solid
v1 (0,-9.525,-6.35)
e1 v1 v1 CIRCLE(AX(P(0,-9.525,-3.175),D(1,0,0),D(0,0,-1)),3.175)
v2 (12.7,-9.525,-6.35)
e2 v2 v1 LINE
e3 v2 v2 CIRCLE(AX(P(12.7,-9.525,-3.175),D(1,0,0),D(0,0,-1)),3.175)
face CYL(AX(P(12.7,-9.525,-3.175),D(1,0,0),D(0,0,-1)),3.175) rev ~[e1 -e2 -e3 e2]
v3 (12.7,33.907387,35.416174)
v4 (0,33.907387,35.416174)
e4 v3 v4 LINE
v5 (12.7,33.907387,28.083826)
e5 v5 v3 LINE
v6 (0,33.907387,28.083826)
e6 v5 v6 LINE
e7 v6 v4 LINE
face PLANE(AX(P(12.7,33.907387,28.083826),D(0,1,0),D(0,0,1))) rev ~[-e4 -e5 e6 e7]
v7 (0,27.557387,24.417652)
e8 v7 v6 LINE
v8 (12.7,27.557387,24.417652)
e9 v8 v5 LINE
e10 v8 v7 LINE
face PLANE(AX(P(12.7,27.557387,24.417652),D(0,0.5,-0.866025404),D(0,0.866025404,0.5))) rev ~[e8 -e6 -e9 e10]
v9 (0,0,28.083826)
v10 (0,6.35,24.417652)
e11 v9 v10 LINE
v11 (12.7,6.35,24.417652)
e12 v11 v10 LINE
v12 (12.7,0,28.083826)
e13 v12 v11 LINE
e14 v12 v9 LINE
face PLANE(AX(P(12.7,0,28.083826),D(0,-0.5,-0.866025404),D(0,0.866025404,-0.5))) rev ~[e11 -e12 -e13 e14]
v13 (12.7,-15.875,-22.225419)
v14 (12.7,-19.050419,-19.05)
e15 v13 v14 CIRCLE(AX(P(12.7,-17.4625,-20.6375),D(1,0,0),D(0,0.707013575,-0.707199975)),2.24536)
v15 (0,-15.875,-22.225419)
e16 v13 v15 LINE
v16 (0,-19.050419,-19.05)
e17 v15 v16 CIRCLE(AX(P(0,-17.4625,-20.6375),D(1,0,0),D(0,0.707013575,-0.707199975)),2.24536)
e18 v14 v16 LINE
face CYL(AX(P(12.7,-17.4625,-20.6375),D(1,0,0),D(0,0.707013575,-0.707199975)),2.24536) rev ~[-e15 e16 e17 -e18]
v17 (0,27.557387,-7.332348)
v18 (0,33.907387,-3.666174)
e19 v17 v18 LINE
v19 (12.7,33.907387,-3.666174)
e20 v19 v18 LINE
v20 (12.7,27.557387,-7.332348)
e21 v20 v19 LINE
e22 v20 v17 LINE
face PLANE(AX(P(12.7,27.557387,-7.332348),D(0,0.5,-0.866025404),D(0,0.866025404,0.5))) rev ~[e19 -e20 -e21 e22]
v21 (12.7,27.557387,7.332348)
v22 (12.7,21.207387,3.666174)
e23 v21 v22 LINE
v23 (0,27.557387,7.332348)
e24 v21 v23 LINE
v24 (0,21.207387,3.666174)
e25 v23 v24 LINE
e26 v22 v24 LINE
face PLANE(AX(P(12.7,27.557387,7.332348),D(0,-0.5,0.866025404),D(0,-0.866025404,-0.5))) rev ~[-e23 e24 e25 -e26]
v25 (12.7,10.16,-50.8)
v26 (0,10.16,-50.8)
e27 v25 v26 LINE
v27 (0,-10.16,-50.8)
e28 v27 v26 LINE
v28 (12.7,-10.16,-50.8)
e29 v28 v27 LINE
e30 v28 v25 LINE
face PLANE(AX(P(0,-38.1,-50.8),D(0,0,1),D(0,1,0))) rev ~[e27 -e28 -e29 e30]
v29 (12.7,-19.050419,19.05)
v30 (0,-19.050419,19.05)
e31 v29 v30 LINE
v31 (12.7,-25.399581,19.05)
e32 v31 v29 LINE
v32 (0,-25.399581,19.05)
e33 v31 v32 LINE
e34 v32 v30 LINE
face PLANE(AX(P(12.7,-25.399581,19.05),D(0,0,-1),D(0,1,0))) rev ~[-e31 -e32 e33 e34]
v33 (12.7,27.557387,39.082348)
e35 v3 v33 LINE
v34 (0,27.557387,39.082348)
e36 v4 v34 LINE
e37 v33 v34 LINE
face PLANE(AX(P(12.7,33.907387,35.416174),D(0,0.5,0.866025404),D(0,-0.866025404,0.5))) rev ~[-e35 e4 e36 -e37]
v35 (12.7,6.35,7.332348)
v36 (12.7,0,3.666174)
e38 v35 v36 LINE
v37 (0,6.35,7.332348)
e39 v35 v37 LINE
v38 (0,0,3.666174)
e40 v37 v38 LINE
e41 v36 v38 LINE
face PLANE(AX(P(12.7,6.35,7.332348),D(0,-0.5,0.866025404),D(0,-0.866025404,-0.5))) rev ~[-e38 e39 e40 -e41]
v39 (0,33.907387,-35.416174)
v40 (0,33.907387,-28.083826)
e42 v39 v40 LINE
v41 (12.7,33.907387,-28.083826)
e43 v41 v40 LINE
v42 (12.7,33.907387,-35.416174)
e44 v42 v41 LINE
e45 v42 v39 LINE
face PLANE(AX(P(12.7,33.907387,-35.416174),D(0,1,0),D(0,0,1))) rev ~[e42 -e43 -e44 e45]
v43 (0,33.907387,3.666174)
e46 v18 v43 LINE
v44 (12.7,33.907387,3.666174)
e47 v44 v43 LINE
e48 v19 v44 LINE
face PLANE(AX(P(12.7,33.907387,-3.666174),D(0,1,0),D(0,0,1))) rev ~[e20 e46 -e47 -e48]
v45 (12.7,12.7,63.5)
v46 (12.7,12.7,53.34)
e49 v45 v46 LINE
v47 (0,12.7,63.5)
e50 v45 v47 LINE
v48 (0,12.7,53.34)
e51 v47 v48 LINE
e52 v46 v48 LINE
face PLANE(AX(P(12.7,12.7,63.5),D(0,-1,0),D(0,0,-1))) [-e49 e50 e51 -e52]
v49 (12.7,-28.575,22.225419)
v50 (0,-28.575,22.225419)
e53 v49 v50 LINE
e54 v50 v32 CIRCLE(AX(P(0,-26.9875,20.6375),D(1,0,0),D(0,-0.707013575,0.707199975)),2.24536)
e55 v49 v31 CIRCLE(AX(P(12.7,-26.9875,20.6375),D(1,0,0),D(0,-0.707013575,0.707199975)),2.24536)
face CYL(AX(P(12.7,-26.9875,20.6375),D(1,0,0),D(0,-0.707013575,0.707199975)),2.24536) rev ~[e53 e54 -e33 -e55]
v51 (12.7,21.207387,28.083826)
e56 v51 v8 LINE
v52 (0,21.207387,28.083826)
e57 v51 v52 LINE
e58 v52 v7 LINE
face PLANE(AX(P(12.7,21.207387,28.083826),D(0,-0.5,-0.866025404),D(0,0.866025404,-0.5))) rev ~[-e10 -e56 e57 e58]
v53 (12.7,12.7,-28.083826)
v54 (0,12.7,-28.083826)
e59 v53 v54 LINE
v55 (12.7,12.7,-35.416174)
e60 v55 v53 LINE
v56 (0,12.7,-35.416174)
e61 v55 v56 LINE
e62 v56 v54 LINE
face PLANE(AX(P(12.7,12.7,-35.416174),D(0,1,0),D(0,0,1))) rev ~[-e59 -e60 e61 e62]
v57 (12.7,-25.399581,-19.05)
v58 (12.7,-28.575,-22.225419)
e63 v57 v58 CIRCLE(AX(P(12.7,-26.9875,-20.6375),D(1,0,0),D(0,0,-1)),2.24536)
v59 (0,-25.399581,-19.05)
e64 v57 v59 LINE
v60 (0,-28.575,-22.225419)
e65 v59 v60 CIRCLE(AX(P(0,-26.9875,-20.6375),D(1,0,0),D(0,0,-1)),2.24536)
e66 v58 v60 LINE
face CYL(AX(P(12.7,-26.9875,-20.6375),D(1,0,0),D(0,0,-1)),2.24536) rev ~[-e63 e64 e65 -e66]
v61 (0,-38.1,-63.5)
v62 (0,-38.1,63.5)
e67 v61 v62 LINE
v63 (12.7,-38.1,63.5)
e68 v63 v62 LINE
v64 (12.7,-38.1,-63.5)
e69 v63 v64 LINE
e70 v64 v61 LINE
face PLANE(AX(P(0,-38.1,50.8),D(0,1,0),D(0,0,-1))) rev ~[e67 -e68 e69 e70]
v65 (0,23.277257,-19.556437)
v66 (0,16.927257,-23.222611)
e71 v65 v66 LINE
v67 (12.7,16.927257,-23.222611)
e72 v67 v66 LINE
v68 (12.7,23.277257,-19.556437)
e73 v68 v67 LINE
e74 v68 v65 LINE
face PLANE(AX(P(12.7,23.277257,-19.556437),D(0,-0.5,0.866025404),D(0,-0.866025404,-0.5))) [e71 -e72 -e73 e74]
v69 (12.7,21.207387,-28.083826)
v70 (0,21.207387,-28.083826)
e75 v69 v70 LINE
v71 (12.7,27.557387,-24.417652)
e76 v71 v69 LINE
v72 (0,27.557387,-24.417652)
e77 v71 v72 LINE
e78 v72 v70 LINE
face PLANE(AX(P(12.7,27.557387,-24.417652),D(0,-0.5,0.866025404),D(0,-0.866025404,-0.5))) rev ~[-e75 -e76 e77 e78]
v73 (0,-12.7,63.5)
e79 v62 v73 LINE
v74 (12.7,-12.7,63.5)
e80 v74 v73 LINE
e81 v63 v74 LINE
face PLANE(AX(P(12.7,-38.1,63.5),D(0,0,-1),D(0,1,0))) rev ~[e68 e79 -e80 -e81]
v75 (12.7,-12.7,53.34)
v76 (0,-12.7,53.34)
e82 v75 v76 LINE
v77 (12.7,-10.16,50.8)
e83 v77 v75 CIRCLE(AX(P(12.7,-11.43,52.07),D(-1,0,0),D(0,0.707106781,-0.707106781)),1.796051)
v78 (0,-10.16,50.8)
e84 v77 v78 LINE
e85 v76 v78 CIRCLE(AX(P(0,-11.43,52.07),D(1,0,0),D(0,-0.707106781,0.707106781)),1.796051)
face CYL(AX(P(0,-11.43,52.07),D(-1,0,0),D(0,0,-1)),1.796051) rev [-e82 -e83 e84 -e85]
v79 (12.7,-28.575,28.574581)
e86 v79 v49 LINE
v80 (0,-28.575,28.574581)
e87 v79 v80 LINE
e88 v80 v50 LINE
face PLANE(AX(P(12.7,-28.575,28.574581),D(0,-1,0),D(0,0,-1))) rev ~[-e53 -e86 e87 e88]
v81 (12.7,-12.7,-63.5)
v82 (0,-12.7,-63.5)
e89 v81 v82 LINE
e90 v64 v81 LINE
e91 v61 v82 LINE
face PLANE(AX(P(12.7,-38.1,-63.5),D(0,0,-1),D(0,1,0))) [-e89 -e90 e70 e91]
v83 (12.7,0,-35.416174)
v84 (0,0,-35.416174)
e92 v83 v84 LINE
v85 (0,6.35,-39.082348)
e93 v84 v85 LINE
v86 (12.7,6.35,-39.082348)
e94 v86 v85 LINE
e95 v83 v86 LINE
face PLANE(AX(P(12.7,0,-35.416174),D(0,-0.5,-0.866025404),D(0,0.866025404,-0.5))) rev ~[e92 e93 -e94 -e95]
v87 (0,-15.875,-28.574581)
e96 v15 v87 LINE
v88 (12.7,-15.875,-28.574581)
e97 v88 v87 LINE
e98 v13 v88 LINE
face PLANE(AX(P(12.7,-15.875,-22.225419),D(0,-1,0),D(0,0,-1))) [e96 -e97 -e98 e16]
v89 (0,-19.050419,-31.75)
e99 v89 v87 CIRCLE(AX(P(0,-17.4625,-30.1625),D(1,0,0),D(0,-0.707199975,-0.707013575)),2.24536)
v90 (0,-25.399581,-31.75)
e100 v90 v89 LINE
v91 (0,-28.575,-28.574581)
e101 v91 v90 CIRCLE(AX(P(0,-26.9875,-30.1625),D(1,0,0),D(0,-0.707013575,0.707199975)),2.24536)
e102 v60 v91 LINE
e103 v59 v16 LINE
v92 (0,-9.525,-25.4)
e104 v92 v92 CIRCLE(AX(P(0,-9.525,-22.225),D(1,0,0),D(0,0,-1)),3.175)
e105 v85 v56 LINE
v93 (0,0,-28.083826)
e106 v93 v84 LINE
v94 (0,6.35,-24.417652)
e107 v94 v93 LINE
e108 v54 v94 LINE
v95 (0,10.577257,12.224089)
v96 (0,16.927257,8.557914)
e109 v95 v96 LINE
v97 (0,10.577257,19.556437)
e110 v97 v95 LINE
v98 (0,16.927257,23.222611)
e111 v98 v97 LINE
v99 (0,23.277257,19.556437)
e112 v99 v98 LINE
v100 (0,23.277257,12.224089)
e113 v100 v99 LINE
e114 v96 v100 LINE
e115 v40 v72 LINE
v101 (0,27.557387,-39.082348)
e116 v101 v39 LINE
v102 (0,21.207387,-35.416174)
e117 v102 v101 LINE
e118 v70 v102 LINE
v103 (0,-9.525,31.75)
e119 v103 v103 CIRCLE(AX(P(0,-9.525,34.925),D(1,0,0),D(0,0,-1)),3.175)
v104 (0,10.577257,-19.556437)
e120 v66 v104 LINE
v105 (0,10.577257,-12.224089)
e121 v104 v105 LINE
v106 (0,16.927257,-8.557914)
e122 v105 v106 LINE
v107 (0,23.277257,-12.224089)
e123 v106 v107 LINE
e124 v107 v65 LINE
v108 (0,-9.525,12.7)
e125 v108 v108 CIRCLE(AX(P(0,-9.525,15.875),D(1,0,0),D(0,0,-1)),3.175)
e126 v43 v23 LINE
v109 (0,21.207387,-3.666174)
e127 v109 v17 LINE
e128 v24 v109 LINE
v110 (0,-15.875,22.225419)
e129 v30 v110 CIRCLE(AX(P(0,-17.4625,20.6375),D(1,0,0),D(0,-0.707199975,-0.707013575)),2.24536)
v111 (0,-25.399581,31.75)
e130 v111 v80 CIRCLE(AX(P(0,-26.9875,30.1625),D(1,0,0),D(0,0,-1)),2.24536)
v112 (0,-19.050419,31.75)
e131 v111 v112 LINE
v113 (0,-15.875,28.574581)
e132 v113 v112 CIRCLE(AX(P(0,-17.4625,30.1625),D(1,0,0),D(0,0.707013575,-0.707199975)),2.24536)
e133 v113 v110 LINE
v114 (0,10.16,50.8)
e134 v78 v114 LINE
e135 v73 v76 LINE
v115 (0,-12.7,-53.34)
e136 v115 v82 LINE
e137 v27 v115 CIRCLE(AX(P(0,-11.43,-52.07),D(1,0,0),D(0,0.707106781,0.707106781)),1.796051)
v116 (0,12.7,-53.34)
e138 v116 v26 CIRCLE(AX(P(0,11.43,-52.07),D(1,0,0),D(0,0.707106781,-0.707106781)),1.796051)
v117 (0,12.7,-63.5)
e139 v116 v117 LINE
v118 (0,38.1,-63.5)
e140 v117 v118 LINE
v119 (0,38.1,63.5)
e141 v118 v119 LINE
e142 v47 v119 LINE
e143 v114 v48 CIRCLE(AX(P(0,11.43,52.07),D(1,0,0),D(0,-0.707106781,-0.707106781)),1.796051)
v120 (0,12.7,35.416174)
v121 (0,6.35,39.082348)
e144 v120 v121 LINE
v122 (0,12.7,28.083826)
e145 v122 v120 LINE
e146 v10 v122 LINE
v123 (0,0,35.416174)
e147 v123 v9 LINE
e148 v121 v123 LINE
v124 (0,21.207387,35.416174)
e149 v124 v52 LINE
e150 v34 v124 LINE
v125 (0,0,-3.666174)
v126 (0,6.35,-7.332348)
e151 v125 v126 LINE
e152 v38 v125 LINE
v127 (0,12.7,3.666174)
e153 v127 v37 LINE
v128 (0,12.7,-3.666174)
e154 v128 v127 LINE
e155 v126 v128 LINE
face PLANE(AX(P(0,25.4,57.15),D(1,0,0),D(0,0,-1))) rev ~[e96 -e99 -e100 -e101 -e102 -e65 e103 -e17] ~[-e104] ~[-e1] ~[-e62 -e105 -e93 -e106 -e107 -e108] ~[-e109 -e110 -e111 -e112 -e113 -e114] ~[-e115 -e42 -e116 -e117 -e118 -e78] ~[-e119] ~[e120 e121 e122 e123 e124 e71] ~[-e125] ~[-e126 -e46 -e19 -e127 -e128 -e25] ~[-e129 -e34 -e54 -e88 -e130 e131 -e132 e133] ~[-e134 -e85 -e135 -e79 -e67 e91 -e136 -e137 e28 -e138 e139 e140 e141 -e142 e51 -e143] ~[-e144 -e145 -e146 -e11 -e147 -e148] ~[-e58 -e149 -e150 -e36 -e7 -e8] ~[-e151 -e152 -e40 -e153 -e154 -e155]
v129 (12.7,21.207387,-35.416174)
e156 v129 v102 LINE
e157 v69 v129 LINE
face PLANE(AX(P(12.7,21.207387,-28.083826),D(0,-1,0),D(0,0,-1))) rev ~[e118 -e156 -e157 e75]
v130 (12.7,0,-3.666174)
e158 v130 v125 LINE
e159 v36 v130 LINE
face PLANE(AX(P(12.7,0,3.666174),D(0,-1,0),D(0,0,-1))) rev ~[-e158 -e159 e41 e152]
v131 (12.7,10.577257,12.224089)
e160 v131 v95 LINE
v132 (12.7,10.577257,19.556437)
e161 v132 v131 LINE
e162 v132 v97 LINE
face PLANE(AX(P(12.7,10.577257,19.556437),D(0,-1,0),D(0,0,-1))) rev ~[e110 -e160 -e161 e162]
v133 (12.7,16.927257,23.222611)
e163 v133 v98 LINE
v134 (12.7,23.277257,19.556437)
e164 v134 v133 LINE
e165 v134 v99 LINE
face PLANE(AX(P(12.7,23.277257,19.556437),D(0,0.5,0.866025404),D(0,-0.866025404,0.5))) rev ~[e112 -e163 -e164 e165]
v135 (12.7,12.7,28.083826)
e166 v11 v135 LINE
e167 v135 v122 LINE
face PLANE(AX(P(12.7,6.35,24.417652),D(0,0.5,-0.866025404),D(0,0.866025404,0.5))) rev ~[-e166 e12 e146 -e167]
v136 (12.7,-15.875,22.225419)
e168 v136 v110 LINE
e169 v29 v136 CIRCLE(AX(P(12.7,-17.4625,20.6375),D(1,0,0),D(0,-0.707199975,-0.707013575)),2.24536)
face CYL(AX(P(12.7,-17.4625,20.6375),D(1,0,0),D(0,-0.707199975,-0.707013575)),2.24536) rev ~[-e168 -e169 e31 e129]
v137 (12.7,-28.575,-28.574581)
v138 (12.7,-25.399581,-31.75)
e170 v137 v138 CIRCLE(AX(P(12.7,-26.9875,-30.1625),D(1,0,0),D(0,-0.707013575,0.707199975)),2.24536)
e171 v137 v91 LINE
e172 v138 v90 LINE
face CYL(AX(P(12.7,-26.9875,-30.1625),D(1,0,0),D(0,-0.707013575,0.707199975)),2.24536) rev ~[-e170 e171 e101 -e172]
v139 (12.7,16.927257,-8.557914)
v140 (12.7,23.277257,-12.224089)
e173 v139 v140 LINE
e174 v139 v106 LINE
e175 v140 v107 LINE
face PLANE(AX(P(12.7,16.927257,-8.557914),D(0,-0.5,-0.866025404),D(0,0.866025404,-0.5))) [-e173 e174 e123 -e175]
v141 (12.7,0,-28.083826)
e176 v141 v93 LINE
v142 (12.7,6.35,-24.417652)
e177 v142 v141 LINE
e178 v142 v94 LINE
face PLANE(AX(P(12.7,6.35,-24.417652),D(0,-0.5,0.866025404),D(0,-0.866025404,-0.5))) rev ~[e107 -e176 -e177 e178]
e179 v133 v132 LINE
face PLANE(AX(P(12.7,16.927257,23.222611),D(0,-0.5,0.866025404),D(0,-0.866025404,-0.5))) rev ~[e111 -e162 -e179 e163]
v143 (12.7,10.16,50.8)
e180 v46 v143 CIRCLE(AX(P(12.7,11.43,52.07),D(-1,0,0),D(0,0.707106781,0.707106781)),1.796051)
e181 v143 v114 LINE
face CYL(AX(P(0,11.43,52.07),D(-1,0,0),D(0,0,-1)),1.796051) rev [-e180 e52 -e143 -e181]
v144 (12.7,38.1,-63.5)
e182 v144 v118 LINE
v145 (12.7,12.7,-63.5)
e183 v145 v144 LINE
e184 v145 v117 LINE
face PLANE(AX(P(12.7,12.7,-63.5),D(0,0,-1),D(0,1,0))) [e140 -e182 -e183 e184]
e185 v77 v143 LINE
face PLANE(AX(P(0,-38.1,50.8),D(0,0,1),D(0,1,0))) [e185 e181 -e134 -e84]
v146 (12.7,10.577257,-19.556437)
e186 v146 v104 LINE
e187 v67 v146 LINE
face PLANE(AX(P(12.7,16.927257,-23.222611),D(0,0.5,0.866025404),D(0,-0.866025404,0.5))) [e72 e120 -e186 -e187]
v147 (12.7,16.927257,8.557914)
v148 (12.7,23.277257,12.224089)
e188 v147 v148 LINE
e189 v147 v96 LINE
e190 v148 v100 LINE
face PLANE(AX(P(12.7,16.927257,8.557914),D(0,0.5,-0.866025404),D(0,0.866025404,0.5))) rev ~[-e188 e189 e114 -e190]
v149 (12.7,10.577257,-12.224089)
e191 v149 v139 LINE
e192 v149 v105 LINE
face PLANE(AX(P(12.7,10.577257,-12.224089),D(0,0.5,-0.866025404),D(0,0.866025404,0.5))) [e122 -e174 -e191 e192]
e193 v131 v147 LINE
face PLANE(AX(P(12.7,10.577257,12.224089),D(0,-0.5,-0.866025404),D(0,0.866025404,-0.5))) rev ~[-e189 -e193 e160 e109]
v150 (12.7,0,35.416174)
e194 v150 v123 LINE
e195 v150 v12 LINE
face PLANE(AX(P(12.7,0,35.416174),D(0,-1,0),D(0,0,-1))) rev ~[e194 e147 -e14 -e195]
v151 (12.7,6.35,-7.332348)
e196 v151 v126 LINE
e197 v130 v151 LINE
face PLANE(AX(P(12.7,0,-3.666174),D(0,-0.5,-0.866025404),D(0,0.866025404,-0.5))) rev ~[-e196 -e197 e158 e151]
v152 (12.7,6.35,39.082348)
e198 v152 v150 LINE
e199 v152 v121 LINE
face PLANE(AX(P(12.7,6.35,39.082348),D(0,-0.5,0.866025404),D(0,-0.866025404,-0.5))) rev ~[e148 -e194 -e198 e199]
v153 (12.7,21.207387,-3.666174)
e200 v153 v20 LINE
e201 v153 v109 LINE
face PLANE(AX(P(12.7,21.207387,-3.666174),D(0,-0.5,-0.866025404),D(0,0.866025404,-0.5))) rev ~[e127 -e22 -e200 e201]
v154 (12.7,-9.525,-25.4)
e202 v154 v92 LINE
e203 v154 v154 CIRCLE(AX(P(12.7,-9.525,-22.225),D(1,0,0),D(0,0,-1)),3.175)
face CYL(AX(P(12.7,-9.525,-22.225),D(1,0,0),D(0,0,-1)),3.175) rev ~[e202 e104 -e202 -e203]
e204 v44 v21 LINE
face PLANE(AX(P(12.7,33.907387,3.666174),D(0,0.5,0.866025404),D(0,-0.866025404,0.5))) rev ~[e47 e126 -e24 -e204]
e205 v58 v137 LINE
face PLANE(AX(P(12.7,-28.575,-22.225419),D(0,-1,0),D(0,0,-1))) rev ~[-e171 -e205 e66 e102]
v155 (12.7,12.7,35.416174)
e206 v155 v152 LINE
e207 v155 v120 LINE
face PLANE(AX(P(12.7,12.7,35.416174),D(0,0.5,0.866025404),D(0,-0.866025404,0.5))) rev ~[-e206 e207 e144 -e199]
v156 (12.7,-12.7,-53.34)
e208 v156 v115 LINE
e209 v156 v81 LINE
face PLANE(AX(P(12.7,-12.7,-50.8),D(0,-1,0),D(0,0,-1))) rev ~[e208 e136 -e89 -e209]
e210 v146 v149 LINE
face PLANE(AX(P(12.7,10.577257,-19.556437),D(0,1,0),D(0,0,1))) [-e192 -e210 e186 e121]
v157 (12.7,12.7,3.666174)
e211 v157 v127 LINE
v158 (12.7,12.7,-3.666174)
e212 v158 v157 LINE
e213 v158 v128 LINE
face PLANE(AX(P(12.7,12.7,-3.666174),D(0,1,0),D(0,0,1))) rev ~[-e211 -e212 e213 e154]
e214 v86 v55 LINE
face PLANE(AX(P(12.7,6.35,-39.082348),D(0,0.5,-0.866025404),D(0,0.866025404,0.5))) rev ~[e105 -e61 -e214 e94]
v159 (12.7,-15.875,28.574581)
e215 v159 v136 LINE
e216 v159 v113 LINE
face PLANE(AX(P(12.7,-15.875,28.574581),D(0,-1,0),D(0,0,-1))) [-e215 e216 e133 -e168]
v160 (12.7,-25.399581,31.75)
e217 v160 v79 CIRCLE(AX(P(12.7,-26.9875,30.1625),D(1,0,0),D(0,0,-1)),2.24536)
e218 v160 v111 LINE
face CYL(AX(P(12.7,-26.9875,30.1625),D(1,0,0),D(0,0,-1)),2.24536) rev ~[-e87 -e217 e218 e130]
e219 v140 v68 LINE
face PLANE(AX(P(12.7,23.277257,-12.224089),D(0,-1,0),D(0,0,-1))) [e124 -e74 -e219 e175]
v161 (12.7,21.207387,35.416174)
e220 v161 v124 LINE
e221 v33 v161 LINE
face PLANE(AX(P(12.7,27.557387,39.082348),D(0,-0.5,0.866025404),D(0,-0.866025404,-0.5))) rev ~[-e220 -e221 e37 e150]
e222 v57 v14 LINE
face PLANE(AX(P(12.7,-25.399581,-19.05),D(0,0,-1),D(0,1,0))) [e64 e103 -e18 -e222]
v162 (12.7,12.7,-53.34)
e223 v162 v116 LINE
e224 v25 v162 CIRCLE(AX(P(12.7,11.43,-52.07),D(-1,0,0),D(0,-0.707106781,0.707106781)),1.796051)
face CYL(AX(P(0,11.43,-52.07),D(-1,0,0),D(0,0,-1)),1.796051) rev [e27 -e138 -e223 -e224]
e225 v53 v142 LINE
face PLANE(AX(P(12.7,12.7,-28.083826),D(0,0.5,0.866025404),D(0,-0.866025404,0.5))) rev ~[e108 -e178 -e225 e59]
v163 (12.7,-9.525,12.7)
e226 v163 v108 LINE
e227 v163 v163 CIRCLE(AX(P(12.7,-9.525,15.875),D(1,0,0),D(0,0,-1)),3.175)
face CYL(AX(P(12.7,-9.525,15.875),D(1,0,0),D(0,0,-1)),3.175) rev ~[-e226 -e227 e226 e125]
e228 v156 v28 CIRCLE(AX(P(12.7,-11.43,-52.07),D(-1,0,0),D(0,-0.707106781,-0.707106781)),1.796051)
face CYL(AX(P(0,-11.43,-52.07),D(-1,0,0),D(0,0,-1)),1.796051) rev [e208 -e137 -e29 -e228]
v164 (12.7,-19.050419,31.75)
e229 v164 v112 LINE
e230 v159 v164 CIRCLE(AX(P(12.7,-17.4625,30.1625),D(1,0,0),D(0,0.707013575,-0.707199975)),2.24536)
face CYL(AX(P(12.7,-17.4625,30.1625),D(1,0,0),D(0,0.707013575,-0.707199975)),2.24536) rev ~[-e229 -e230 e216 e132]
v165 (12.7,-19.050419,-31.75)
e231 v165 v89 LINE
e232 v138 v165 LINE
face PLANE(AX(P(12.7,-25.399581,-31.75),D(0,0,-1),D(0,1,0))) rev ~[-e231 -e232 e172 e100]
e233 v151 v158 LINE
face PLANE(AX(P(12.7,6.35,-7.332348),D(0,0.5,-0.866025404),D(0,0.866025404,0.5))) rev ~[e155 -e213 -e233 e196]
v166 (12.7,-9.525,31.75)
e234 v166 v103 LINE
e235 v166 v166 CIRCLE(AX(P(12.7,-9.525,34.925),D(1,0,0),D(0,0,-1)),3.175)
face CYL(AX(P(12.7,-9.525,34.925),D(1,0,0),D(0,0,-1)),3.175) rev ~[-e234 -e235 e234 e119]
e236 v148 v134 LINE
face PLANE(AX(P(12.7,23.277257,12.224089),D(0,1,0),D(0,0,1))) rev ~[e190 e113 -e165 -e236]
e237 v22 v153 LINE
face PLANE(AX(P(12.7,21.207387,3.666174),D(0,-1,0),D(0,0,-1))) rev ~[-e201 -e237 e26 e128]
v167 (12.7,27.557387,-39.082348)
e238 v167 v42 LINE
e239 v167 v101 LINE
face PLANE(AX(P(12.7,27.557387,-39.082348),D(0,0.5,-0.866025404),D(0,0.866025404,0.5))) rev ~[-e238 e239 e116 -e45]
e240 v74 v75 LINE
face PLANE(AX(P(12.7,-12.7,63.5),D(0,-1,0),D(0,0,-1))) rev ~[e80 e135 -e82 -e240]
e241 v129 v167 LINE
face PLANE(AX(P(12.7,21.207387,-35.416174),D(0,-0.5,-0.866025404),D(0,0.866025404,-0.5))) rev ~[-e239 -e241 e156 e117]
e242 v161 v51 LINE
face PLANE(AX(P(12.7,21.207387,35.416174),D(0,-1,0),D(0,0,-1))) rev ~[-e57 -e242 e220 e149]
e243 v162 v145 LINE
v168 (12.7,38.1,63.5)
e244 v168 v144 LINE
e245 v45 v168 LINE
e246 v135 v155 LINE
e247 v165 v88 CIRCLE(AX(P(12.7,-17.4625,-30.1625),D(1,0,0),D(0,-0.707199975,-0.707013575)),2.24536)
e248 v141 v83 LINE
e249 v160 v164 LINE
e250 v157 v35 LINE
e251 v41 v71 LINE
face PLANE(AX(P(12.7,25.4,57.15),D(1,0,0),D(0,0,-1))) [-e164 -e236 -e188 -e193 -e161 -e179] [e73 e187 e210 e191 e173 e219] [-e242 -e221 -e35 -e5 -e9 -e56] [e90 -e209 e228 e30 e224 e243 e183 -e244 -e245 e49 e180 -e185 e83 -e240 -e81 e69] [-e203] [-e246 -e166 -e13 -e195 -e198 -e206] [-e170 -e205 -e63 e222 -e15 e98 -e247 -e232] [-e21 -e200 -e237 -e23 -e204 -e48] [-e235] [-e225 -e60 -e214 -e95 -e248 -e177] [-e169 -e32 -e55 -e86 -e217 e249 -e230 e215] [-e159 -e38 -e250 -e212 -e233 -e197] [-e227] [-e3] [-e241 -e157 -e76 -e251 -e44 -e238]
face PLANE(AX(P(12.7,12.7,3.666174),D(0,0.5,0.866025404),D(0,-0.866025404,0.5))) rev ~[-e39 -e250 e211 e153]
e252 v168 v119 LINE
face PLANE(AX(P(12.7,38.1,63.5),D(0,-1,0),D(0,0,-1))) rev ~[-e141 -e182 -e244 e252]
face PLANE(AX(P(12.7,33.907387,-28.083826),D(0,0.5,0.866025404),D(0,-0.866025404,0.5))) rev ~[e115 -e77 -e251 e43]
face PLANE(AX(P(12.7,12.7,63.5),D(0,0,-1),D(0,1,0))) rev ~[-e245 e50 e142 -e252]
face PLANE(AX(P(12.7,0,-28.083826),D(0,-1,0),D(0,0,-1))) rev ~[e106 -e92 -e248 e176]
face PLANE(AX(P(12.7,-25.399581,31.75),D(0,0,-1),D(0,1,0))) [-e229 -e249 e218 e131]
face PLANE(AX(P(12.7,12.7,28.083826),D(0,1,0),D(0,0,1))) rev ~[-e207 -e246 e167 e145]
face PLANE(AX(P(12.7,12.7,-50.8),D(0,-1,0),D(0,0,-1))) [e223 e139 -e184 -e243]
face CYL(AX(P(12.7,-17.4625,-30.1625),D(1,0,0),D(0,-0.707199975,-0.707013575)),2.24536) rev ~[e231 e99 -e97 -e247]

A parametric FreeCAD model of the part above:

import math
import FreeCAD as App
import Part
import Sketcher
Q = App.Units.Quantity

doc = App.newDocument("Part")
params = doc.addObject("Spreadsheet::Sheet", "Params")
for row, (alias, value) in enumerate([
    ("sketch1_width", "3 in"),
    ("sketch1_height", "4 in"),
    ("pad1_length", "0.5 in"),
    ("pocket1_length", "0.5 in"),
    ("pocket2_length", "0.5 in"),
    ("sketch4_width", "1 in"),
    ("sketch4_height", "0.5 in"),
    ("pad2_length", "0.5 in"),
    ("pocket3_length", "0.5 in"),
    ("sketch6_diameter", "0.25 in"),
    ("sketch7_diameter", "0.25 in"),
    ("sketch8_diameter", "0.25 in"),
    ("sketch9_diameter", "0.25 in"),
], start=1):
    params.set(f"A{row}", alias)
    params.set(f"B{row}", "=" + value)
    params.setAlias(f"B{row}", alias)

body = doc.addObject("PartDesign::Body", "Body")

# Sketch on YZ plane
sketch1 = body.newObject("Sketcher::SketchObject", "Sketch")
sketch1.AttachmentSupport = (doc.getObject("YZ_Plane"), [""])
sketch1.MapMode = "FlatFace"
sketch1.addGeometry([
    Part.LineSegment(App.Vector(38, 51, 0), App.Vector(-38, 51, 0)),
    Part.LineSegment(App.Vector(-38, 51, 0), App.Vector(-38, -51, 0)),
    Part.LineSegment(App.Vector(-38, -51, 0), App.Vector(38, -51, 0)),
    Part.LineSegment(App.Vector(38, -51, 0), App.Vector(38, 51, 0)),
], False)
sketch1.addConstraint([
    Sketcher.Constraint("Coincident", 0, 2, 1, 1),
    Sketcher.Constraint("Coincident", 1, 2, 2, 1),
    Sketcher.Constraint("Coincident", 2, 2, 3, 1),
    Sketcher.Constraint("Coincident", 3, 2, 0, 1),
    Sketcher.Constraint("Horizontal", 0),
    Sketcher.Constraint("Vertical", 1),
    Sketcher.Constraint("Horizontal", 2),
    Sketcher.Constraint("Vertical", 3),
    Sketcher.Constraint("Symmetric", 0, 2, 2, 2, -1, 1),
    Sketcher.Constraint("DistanceX", 0, 2, 0, 1, Q("3 in")),
    Sketcher.Constraint("DistanceY", 1, 2, 1, 1, Q("4 in")),
])
sketch1.setExpression("Constraints[9]", "Params.sketch1_width")
sketch1.setExpression("Constraints[10]", "Params.sketch1_height")
pad1 = body.newObject("PartDesign::Pad", "Pad")
pad1.Profile = sketch1
pad1.setExpression("Length", "Params.pad1_length")

# Sketch on YZ plane
sketch2 = body.newObject("Sketcher::SketchObject", "Sketch001")
sketch2.AttachmentSupport = (doc.getObject("YZ_Plane"), [""])
sketch2.MapMode = "FlatFace"
sketch2.AttachmentOffset = App.Placement(App.Vector(0, 0, 0.5 * 25.4), App.Rotation())
sketch2.addGeometry([
    Part.LineSegment(App.Vector(-15.9, 22.2, 0), App.Vector(-15.9, 28.6, 0)),  # 0
    Part.ArcOfCircle(Part.Circle(App.Vector(-17.5, 30.2, 0), App.Vector(0, 0, 1), 2.2), math.radians(-45), math.radians(135)),  # 1
    Part.LineSegment(App.Vector(-19.1, 31.8, 0), App.Vector(-25.4, 31.8, 0)),  # 2
    Part.ArcOfCircle(Part.Circle(App.Vector(-27, 30.2, 0), App.Vector(0, 0, 1), 2.2), math.radians(45), math.radians(225)),  # 3
    Part.LineSegment(App.Vector(-28.6, 28.6, 0), App.Vector(-28.6, 22.2, 0)),  # 4
    Part.ArcOfCircle(Part.Circle(App.Vector(-27, 20.6, 0), App.Vector(0, 0, 1), 2.2), math.radians(135), math.radians(315)),  # 5
    Part.LineSegment(App.Vector(-25.4, 19.1, 0), App.Vector(-19.1, 19.1, 0)),  # 6
    Part.ArcOfCircle(Part.Circle(App.Vector(-17.5, 20.6, 0), App.Vector(0, 0, 1), 2.2), math.radians(-135), math.radians(45)),  # 7
    Part.ArcOfCircle(Part.Circle(App.Vector(-27, -20.6, 0), App.Vector(0, 0, 1), 2.2), math.radians(45), math.radians(225)),  # 8
    Part.LineSegment(App.Vector(-28.6, -22.2, 0), App.Vector(-28.6, -28.6, 0)),  # 9
    Part.ArcOfCircle(Part.Circle(App.Vector(-27, -30.2, 0), App.Vector(0, 0, 1), 2.2), math.radians(135), math.radians(315)),  # 10
    Part.LineSegment(App.Vector(-25.4, -31.8, 0), App.Vector(-19.1, -31.8, 0)),  # 11
    Part.ArcOfCircle(Part.Circle(App.Vector(-17.5, -30.2, 0), App.Vector(0, 0, 1), 2.2), math.radians(-135), math.radians(45)),  # 12
    Part.LineSegment(App.Vector(-15.9, -28.6, 0), App.Vector(-15.9, -22.2, 0)),  # 13
    Part.ArcOfCircle(Part.Circle(App.Vector(-17.5, -20.6, 0), App.Vector(0, 0, 1), 2.2), math.radians(-45), math.radians(135)),  # 14
    Part.LineSegment(App.Vector(-19.1, -19.1, 0), App.Vector(-25.4, -19.1, 0)),  # 15
], False)
sketch2.addConstraint([
    Sketcher.Constraint("Coincident", 0, 2, 1, 1),
    Sketcher.Constraint("Coincident", 1, 2, 2, 1),
    Sketcher.Constraint("Coincident", 2, 2, 3, 1),
    Sketcher.Constraint("Coincident", 3, 2, 4, 1),
    Sketcher.Constraint("Coincident", 4, 2, 5, 1),
    Sketcher.Constraint("Coincident", 5, 2, 6, 1),
    Sketcher.Constraint("Coincident", 6, 2, 7, 1),
    Sketcher.Constraint("Coincident", 7, 2, 0, 1),
    Sketcher.Constraint("Coincident", 8, 2, 9, 1),
    Sketcher.Constraint("Coincident", 9, 2, 10, 1),
    Sketcher.Constraint("Coincident", 10, 2, 11, 1),
    Sketcher.Constraint("Coincident", 11, 2, 12, 1),
    Sketcher.Constraint("Coincident", 12, 2, 13, 1),
    Sketcher.Constraint("Coincident", 13, 2, 14, 1),
    Sketcher.Constraint("Coincident", 14, 2, 15, 1),
    Sketcher.Constraint("Coincident", 15, 2, 8, 1),
    Sketcher.Constraint("Vertical", 0),
    Sketcher.Constraint("Horizontal", 2),
    Sketcher.Constraint("Vertical", 4),
    Sketcher.Constraint("Horizontal", 6),
    Sketcher.Constraint("Vertical", 9),
    Sketcher.Constraint("Horizontal", 11),
    Sketcher.Constraint("Vertical", 13),
    Sketcher.Constraint("Horizontal", 15),
    Sketcher.Constraint("Equal", 1, 3),
    Sketcher.Constraint("Equal", 3, 5),
    Sketcher.Constraint("Equal", 5, 7),
    Sketcher.Constraint("Equal", 7, 8),
    Sketcher.Constraint("Equal", 8, 10),
    Sketcher.Constraint("Equal", 10, 12),
    Sketcher.Constraint("Equal", 12, 14),
    Sketcher.Constraint("Symmetric", 5, 3, 8, 3, -1),
    Sketcher.Constraint("Symmetric", 3, 3, 10, 3, -1),
    Sketcher.Constraint("Symmetric", 1, 3, 12, 3, -1),
    Sketcher.Constraint("Symmetric", 7, 3, 14, 3, -1),
    Sketcher.Constraint("Horizontal", 1, 3, 3, 3),
    Sketcher.Constraint("Horizontal", 5, 3, 7, 3),
    Sketcher.Constraint("Horizontal", 0, 2, 3, 2),
    Sketcher.Constraint("Horizontal", 4, 2, 7, 2),
    Sketcher.Constraint("Horizontal", 9, 2, 12, 2),
    Sketcher.Constraint("Vertical", 3, 3, 5, 3),
    Sketcher.Constraint("Vertical", 2, 2, 5, 2),
    Sketcher.Constraint("Vertical", 4, 2, 8, 2),
    Sketcher.Constraint("Vertical", 5, 2, 10, 2),
    Sketcher.Constraint("Vertical", 11, 2, 14, 2),
    Sketcher.Constraint("Equal", 15, 0),
    Sketcher.Constraint("DistanceY", 8, 3, 3, 3, Q("2 in")),
    Sketcher.Constraint("Radius", 1, Q("0.0884 in")),
    Sketcher.Constraint("DistanceY", -1, 1, 1, 2, Q("1.25 in")),
    Sketcher.Constraint("DistanceX", 1, 3, -1, 1, Q("0.6875 in")),
    Sketcher.Constraint("DistanceY", -1, 1, 1, 3, Q("1.1875 in")),
    Sketcher.Constraint("DistanceX", 3, 3, -1, 1, Q("1.0625 in")),
])
pocket1 = body.newObject("PartDesign::Pocket", "Pocket")
pocket1.Profile = sketch2
pocket1.setExpression("Length", "Params.pocket1_length")

# Sketch on YZ plane
sketch3 = body.newObject("Sketcher::SketchObject", "Sketch002")
sketch3.AttachmentSupport = (doc.getObject("YZ_Plane"), [""])
sketch3.MapMode = "FlatFace"
sketch3.AttachmentOffset = App.Placement(App.Vector(0, 0, 0.5 * 25.4), App.Rotation())
sketch3.addGeometry([
    Part.LineSegment(App.Vector(21, 35, 0), App.Vector(21, 28, 0)),  # 0
    Part.LineSegment(App.Vector(21, 28, 0), App.Vector(28, 24, 0)),  # 1
    Part.LineSegment(App.Vector(28, 24, 0), App.Vector(34, 28, 0)),  # 2
    Part.LineSegment(App.Vector(34, 28, 0), App.Vector(34, 35, 0)),  # 3
    Part.LineSegment(App.Vector(34, 35, 0), App.Vector(28, 39, 0)),  # 4
    Part.LineSegment(App.Vector(28, 39, 0), App.Vector(21, 35, 0)),  # 5
    Part.LineSegment(App.Vector(0, 4, 0), App.Vector(0, -4, 0)),  # 6
    Part.LineSegment(App.Vector(0, -4, 0), App.Vector(6, -7, 0)),  # 7
    Part.LineSegment(App.Vector(6, -7, 0), App.Vector(13, -4, 0)),  # 8
    Part.LineSegment(App.Vector(13, -4, 0), App.Vector(13, 4, 0)),  # 9
    Part.LineSegment(App.Vector(13, 4, 0), App.Vector(6, 7, 0)),  # 10
    Part.LineSegment(App.Vector(6, 7, 0), App.Vector(0, 4, 0)),  # 11
    Part.LineSegment(App.Vector(0, 35, 0), App.Vector(0, 28, 0)),  # 12
    Part.LineSegment(App.Vector(0, 28, 0), App.Vector(6, 24, 0)),  # 13
    Part.LineSegment(App.Vector(6, 24, 0), App.Vector(13, 28, 0)),  # 14
    Part.LineSegment(App.Vector(13, 28, 0), App.Vector(13, 35, 0)),  # 15
    Part.LineSegment(App.Vector(13, 35, 0), App.Vector(6, 39, 0)),  # 16
    Part.LineSegment(App.Vector(6, 39, 0), App.Vector(0, 35, 0)),  # 17
    Part.LineSegment(App.Vector(0, -28, 0), App.Vector(0, -35, 0)),  # 18
    Part.LineSegment(App.Vector(0, -35, 0), App.Vector(6, -39, 0)),  # 19
    Part.LineSegment(App.Vector(6, -39, 0), App.Vector(13, -35, 0)),  # 20
    Part.LineSegment(App.Vector(13, -35, 0), App.Vector(13, -28, 0)),  # 21
    Part.LineSegment(App.Vector(13, -28, 0), App.Vector(6, -24, 0)),  # 22
    Part.LineSegment(App.Vector(6, -24, 0), App.Vector(0, -28, 0)),  # 23
    Part.LineSegment(App.Vector(21, 4, 0), App.Vector(21, -4, 0)),  # 24
    Part.LineSegment(App.Vector(21, -4, 0), App.Vector(28, -7, 0)),  # 25
    Part.LineSegment(App.Vector(28, -7, 0), App.Vector(34, -4, 0)),  # 26
    Part.LineSegment(App.Vector(34, -4, 0), App.Vector(34, 4, 0)),  # 27
    Part.LineSegment(App.Vector(34, 4, 0), App.Vector(28, 7, 0)),  # 28
    Part.LineSegment(App.Vector(28, 7, 0), App.Vector(21, 4, 0)),  # 29
    Part.LineSegment(App.Vector(21, -28, 0), App.Vector(21, -35, 0)),  # 30
    Part.LineSegment(App.Vector(21, -35, 0), App.Vector(28, -39, 0)),  # 31
    Part.LineSegment(App.Vector(28, -39, 0), App.Vector(34, -35, 0)),  # 32
    Part.LineSegment(App.Vector(34, -35, 0), App.Vector(34, -28, 0)),  # 33
    Part.LineSegment(App.Vector(34, -28, 0), App.Vector(28, -24, 0)),  # 34
    Part.LineSegment(App.Vector(28, -24, 0), App.Vector(21, -28, 0)),  # 35
    Part.LineSegment(App.Vector(11, -12, 0), App.Vector(11, -20, 0)),  # 36
    Part.LineSegment(App.Vector(11, -20, 0), App.Vector(17, -23, 0)),  # 37
    Part.LineSegment(App.Vector(17, -23, 0), App.Vector(23, -20, 0)),  # 38
    Part.LineSegment(App.Vector(23, -20, 0), App.Vector(23, -12, 0)),  # 39
    Part.LineSegment(App.Vector(23, -12, 0), App.Vector(17, -9, 0)),  # 40
    Part.LineSegment(App.Vector(17, -9, 0), App.Vector(11, -12, 0)),  # 41
    Part.LineSegment(App.Vector(11, 12, 0), App.Vector(17, 9, 0)),  # 42
    Part.LineSegment(App.Vector(17, 9, 0), App.Vector(23, 12, 0)),  # 43
    Part.LineSegment(App.Vector(23, 12, 0), App.Vector(23, 20, 0)),  # 44
    Part.LineSegment(App.Vector(23, 20, 0), App.Vector(17, 23, 0)),  # 45
    Part.LineSegment(App.Vector(17, 23, 0), App.Vector(11, 20, 0)),  # 46
    Part.LineSegment(App.Vector(11, 20, 0), App.Vector(11, 12, 0)),  # 47
], False)
sketch3.addConstraint([
    Sketcher.Constraint("Coincident", 0, 2, 1, 1),
    Sketcher.Constraint("Coincident", 1, 2, 2, 1),
    Sketcher.Constraint("Coincident", 2, 2, 3, 1),
    Sketcher.Constraint("Coincident", 3, 2, 4, 1),
    Sketcher.Constraint("Coincident", 4, 2, 5, 1),
    Sketcher.Constraint("Coincident", 5, 2, 0, 1),
    Sketcher.Constraint("Coincident", 6, 2, 7, 1),
    Sketcher.Constraint("Coincident", 7, 2, 8, 1),
    Sketcher.Constraint("Coincident", 8, 2, 9, 1),
    Sketcher.Constraint("Coincident", 9, 2, 10, 1),
    Sketcher.Constraint("Coincident", 10, 2, 11, 1),
    Sketcher.Constraint("Coincident", 11, 2, 6, 1),
    Sketcher.Constraint("Coincident", 12, 2, 13, 1),
    Sketcher.Constraint("Coincident", 13, 2, 14, 1),
    Sketcher.Constraint("Coincident", 14, 2, 15, 1),
    Sketcher.Constraint("Coincident", 15, 2, 16, 1),
    Sketcher.Constraint("Coincident", 16, 2, 17, 1),
    Sketcher.Constraint("Coincident", 17, 2, 12, 1),
    Sketcher.Constraint("Coincident", 18, 2, 19, 1),
    Sketcher.Constraint("Coincident", 19, 2, 20, 1),
    Sketcher.Constraint("Coincident", 20, 2, 21, 1),
    Sketcher.Constraint("Coincident", 21, 2, 22, 1),
    Sketcher.Constraint("Coincident", 22, 2, 23, 1),
    Sketcher.Constraint("Coincident", 23, 2, 18, 1),
    Sketcher.Constraint("Coincident", 24, 2, 25, 1),
    Sketcher.Constraint("Coincident", 25, 2, 26, 1),
    Sketcher.Constraint("Coincident", 26, 2, 27, 1),
    Sketcher.Constraint("Coincident", 27, 2, 28, 1),
    Sketcher.Constraint("Coincident", 28, 2, 29, 1),
    Sketcher.Constraint("Coincident", 29, 2, 24, 1),
    Sketcher.Constraint("Coincident", 30, 2, 31, 1),
    Sketcher.Constraint("Coincident", 31, 2, 32, 1),
    Sketcher.Constraint("Coincident", 32, 2, 33, 1),
    Sketcher.Constraint("Coincident", 33, 2, 34, 1),
    Sketcher.Constraint("Coincident", 34, 2, 35, 1),
    Sketcher.Constraint("Coincident", 35, 2, 30, 1),
    Sketcher.Constraint("Coincident", 36, 2, 37, 1),
    Sketcher.Constraint("Coincident", 37, 2, 38, 1),
    Sketcher.Constraint("Coincident", 38, 2, 39, 1),
    Sketcher.Constraint("Coincident", 39, 2, 40, 1),
    Sketcher.Constraint("Coincident", 40, 2, 41, 1),
    Sketcher.Constraint("Coincident", 41, 2, 36, 1),
    Sketcher.Constraint("Coincident", 42, 2, 43, 1),
    Sketcher.Constraint("Coincident", 43, 2, 44, 1),
    Sketcher.Constraint("Coincident", 44, 2, 45, 1),
    Sketcher.Constraint("Coincident", 45, 2, 46, 1),
    Sketcher.Constraint("Coincident", 46, 2, 47, 1),
    Sketcher.Constraint("Coincident", 47, 2, 42, 1),
    Sketcher.Constraint("Vertical", 0),
    Sketcher.Constraint("Vertical", 3),
    Sketcher.Constraint("Vertical", 6),
    Sketcher.Constraint("Vertical", 9),
    Sketcher.Constraint("Vertical", 12),
    Sketcher.Constraint("Vertical", 15),
    Sketcher.Constraint("Vertical", 18),
    Sketcher.Constraint("Vertical", 21),
    Sketcher.Constraint("Vertical", 24),
    Sketcher.Constraint("Vertical", 27),
    Sketcher.Constraint("Vertical", 30),
    Sketcher.Constraint("Vertical", 33),
    Sketcher.Constraint("Vertical", 36),
    Sketcher.Constraint("Vertical", 39),
    Sketcher.Constraint("Vertical", 44),
    Sketcher.Constraint("Vertical", 47),
    Sketcher.Constraint("Symmetric", 6, 2, 11, 2, -1, 1),
    Sketcher.Constraint("Symmetric", 17, 2, 18, 2, -1, 1),
    Sketcher.Constraint("Symmetric", 7, 2, 10, 2, -1),
    Sketcher.Constraint("Symmetric", 16, 2, 19, 2, -1),
    Sketcher.Constraint("Symmetric", 15, 2, 20, 2, -1),
    Sketcher.Constraint("Symmetric", 13, 2, 22, 2, -1),
    Sketcher.Constraint("Symmetric", 12, 2, 23, 2, -1),
    Sketcher.Constraint("Symmetric", 25, 2, 28, 2, -1),
    Sketcher.Constraint("Symmetric", 5, 2, 30, 2, -1),
    Sketcher.Constraint("Symmetric", 4, 2, 31, 2, -1),
    Sketcher.Constraint("Symmetric", 3, 2, 32, 2, -1),
    Sketcher.Constraint("Symmetric", 1, 2, 34, 2, -1),
    Sketcher.Constraint("Symmetric", 40, 2, 42, 2, -1),
    Sketcher.Constraint("Symmetric", 39, 2, 43, 2, -1),
    Sketcher.Constraint("Symmetric", 37, 2, 45, 2, -1),
    Sketcher.Constraint("Symmetric", 36, 2, 46, 2, -1),
    Sketcher.Constraint("Parallel", 1, 4),
    Sketcher.Constraint("Parallel", 2, 5),
    Sketcher.Constraint("Parallel", 4, 7),
    Sketcher.Constraint("Parallel", 5, 8),
    Sketcher.Constraint("Parallel", 7, 10),
    Sketcher.Constraint("Parallel", 8, 11),
    Sketcher.Constraint("Parallel", 10, 13),
    Sketcher.Constraint("Parallel", 11, 14),
    Sketcher.Constraint("Parallel", 13, 16),
    Sketcher.Constraint("Parallel", 14, 17),
    Sketcher.Constraint("Parallel", 19, 22),
    Sketcher.Constraint("Parallel", 22, 25),
    Sketcher.Constraint("Parallel", 23, 26),
    Sketcher.Constraint("Parallel", 25, 28),
    Sketcher.Constraint("Parallel", 26, 29),
    Sketcher.Constraint("Parallel", 31, 34),
    Sketcher.Constraint("Parallel", 32, 35),
    Sketcher.Constraint("Parallel", 34, 37),
    Sketcher.Constraint("Parallel", 35, 38),
    Sketcher.Constraint("Parallel", 37, 40),
    Sketcher.Constraint("Parallel", 38, 41),
    Sketcher.Constraint("Parallel", 40, 42),
    Sketcher.Constraint("Parallel", 42, 45),
    Sketcher.Constraint("Horizontal", 0, 2, 2, 2),
    Sketcher.Constraint("Horizontal", 3, 2, 5, 2),
    Sketcher.Constraint("Horizontal", 6, 2, 8, 2),
    Sketcher.Constraint("Horizontal", 2, 2, 12, 2),
    Sketcher.Constraint("Horizontal", 1, 2, 13, 2),
    Sketcher.Constraint("Horizontal", 12, 2, 14, 2),
    Sketcher.Constraint("Horizontal", 5, 2, 15, 2),
    Sketcher.Constraint("Horizontal", 4, 2, 16, 2),
    Sketcher.Constraint("Horizontal", 8, 2, 24, 2),
    Sketcher.Constraint("Horizontal", 7, 2, 25, 2),
    Sketcher.Constraint("Horizontal", 24, 2, 26, 2),
    Sketcher.Constraint("Horizontal", 36, 2, 38, 2),
    Sketcher.Constraint("Horizontal", 39, 2, 41, 2),
    Sketcher.Constraint("Vertical", 10, 2, 13, 2),
    Sketcher.Constraint("Vertical", 5, 2, 24, 2),
    Sketcher.Constraint("Equal", 3, 6),
    Sketcher.Constraint("Equal", 33, 36),
    Sketcher.Constraint("Equal", 35, 37),
    Sketcher.Constraint("Angle", 1, Q("-30 deg")),
    Sketcher.Constraint("DistanceX", -1, 1, 8, 2, Q("0.5 in")),
    Sketcher.Constraint("DistanceY", 6, 2, 0, 2, Q("1.25 in")),
    Sketcher.Constraint("DistanceY", 0, 2, 0, 1, 7.332348),
    Sketcher.Constraint("DistanceY", 37, 2, -1, 1, 23.222611),
    Sketcher.Constraint("DistanceX", 36, 2, 35, 2, 10.630129),
    Sketcher.Constraint("DistanceX", -1, 1, 0, 2, 21.207387),
])
pocket2 = body.newObject("PartDesign::Pocket", "Pocket001")
pocket2.Profile = sketch3
pocket2.setExpression("Length", "Params.pocket2_length")

# Sketch on YZ plane
sketch4 = body.newObject("Sketcher::SketchObject", "Sketch003")
sketch4.AttachmentSupport = (doc.getObject("YZ_Plane"), [""])
sketch4.MapMode = "FlatFace"
sketch4.AttachmentOffset = App.Placement(App.Vector(0, 0, 0.5 * 25.4), App.Rotation())
sketch4.addGeometry([
    Part.LineSegment(App.Vector(38, 64, 0), App.Vector(13, 64, 0)),  # 0
    Part.LineSegment(App.Vector(13, 64, 0), App.Vector(13, 51, 0)),  # 1
    Part.LineSegment(App.Vector(13, 51, 0), App.Vector(38, 51, 0)),  # 2
    Part.LineSegment(App.Vector(38, 51, 0), App.Vector(38, 64, 0)),  # 3
    Part.LineSegment(App.Vector(-13, 64, 0), App.Vector(-38, 64, 0)),  # 4
    Part.LineSegment(App.Vector(-38, 64, 0), App.Vector(-38, 51, 0)),  # 5
    Part.LineSegment(App.Vector(-38, 51, 0), App.Vector(-13, 51, 0)),  # 6
    Part.LineSegment(App.Vector(-13, 51, 0), App.Vector(-13, 64, 0)),  # 7
    Part.LineSegment(App.Vector(-13, -51, 0), App.Vector(-38, -51, 0)),  # 8
    Part.LineSegment(App.Vector(-38, -51, 0), App.Vector(-38, -64, 0)),  # 9
    Part.LineSegment(App.Vector(-38, -64, 0), App.Vector(-13, -64, 0)),  # 10
    Part.LineSegment(App.Vector(-13, -64, 0), App.Vector(-13, -51, 0)),  # 11
    Part.LineSegment(App.Vector(38, -51, 0), App.Vector(13, -51, 0)),  # 12
    Part.LineSegment(App.Vector(13, -51, 0), App.Vector(13, -64, 0)),  # 13
    Part.LineSegment(App.Vector(13, -64, 0), App.Vector(38, -64, 0)),  # 14
    Part.LineSegment(App.Vector(38, -64, 0), App.Vector(38, -51, 0)),  # 15
], False)
sketch4.addConstraint([
    Sketcher.Constraint("Coincident", 0, 2, 1, 1),
    Sketcher.Constraint("Coincident", 1, 2, 2, 1),
    Sketcher.Constraint("Coincident", 2, 2, 3, 1),
    Sketcher.Constraint("Coincident", 3, 2, 0, 1),
    Sketcher.Constraint("Coincident", 4, 2, 5, 1),
    Sketcher.Constraint("Coincident", 5, 2, 6, 1),
    Sketcher.Constraint("Coincident", 6, 2, 7, 1),
    Sketcher.Constraint("Coincident", 7, 2, 4, 1),
    Sketcher.Constraint("Coincident", 8, 2, 9, 1),
    Sketcher.Constraint("Coincident", 9, 2, 10, 1),
    Sketcher.Constraint("Coincident", 10, 2, 11, 1),
    Sketcher.Constraint("Coincident", 11, 2, 8, 1),
    Sketcher.Constraint("Coincident", 12, 2, 13, 1),
    Sketcher.Constraint("Coincident", 13, 2, 14, 1),
    Sketcher.Constraint("Coincident", 14, 2, 15, 1),
    Sketcher.Constraint("Coincident", 15, 2, 12, 1),
    Sketcher.Constraint("Horizontal", 0),
    Sketcher.Constraint("Vertical", 1),
    Sketcher.Constraint("Horizontal", 2),
    Sketcher.Constraint("Vertical", 3),
    Sketcher.Constraint("Horizontal", 4),
    Sketcher.Constraint("Vertical", 5),
    Sketcher.Constraint("Horizontal", 6),
    Sketcher.Constraint("Vertical", 7),
    Sketcher.Constraint("Horizontal", 8),
    Sketcher.Constraint("Vertical", 9),
    Sketcher.Constraint("Horizontal", 10),
    Sketcher.Constraint("Vertical", 11),
    Sketcher.Constraint("Horizontal", 12),
    Sketcher.Constraint("Vertical", 13),
    Sketcher.Constraint("Horizontal", 14),
    Sketcher.Constraint("Vertical", 15),
    Sketcher.Constraint("Symmetric", 2, 2, 8, 2, -1, 1),
    Sketcher.Constraint("Symmetric", 0, 2, 10, 2, -1, 1),
    Sketcher.Constraint("Symmetric", 6, 2, 12, 2, -1, 1),
    Sketcher.Constraint("Symmetric", 4, 2, 14, 2, -1, 1),
    Sketcher.Constraint("Symmetric", 3, 2, 4, 2, -2),
    Sketcher.Constraint("Symmetric", 1, 2, 6, 2, -2),
    Sketcher.Constraint("DistanceX", 0, 2, 0, 1, Q("1 in")),
    Sketcher.Constraint("DistanceY", 1, 2, 1, 1, Q("0.5 in")),
    Sketcher.Constraint("DistanceY", -1, 1, 1, 2, Q("2 in")),
    Sketcher.Constraint("DistanceX", 4, 2, 0, 2, Q("2 in")),
])
sketch4.setExpression("Constraints[38]", "Params.sketch4_width")
sketch4.setExpression("Constraints[39]", "Params.sketch4_height")
pad2 = body.newObject("PartDesign::Pad", "Pad001")
pad2.Profile = sketch4
pad2.setExpression("Length", "Params.pad2_length")
pad2.Reversed = True

# Sketch on YZ plane
sketch5 = body.newObject("Sketcher::SketchObject", "Sketch004")
sketch5.AttachmentSupport = (doc.getObject("YZ_Plane"), [""])
sketch5.MapMode = "FlatFace"
sketch5.addGeometry([
    Part.Circle(App.Vector(11.4, 52.1, 0), App.Vector(0, 0, 1), 1.8),
    Part.Circle(App.Vector(-11.4, 52.1, 0), App.Vector(0, 0, 1), 1.8),
    Part.Circle(App.Vector(-11.4, -52.1, 0), App.Vector(0, 0, 1), 1.8),
    Part.Circle(App.Vector(11.4, -52.1, 0), App.Vector(0, 0, 1), 1.8),
], False)
sketch5.addConstraint([
    Sketcher.Constraint("Equal", 0, 1),
    Sketcher.Constraint("Equal", 1, 2),
    Sketcher.Constraint("Equal", 2, 3),
    Sketcher.Constraint("Symmetric", 0, 3, 2, 3, -1, 1),
    Sketcher.Constraint("Symmetric", 1, 3, 3, 3, -1, 1),
    Sketcher.Constraint("Symmetric", 0, 3, 1, 3, -2),
    Sketcher.Constraint("DistanceX", 1, 3, 0, 3, Q("0.9 in")),
    Sketcher.Constraint("DistanceY", 2, 3, 1, 3, Q("4.1 in")),
    Sketcher.Constraint("Diameter", 0, 3.592102),
])
pocket3 = body.newObject("PartDesign::Pocket", "Pocket002")
pocket3.Profile = sketch5
pocket3.setExpression("Length", "Params.pocket3_length")
pocket3.Reversed = True

# Sketch on YZ plane
sketch6 = body.newObject("Sketcher::SketchObject", "Sketch005")
sketch6.AttachmentSupport = (doc.getObject("YZ_Plane"), [""])
sketch6.MapMode = "FlatFace"
sketch6.AttachmentOffset = App.Placement(App.Vector(0, 0, 0.5 * 25.4), App.Rotation())
sketch6.addGeometry(Part.Circle(App.Vector(-9.5, 34.9, 0), App.Vector(0, 0, 1), 3.2), False)
sketch6.addConstraint([
    Sketcher.Constraint("Diameter", 0, Q("0.25 in")),
    Sketcher.Constraint("DistanceX", 0, 3, -1, 1, Q("0.375 in")),
    Sketcher.Constraint("DistanceY", -1, 1, 0, 3, Q("1.375 in")),
])
sketch6.setExpression("Constraints[0]", "Params.sketch6_diameter")
pocket4 = body.newObject("PartDesign::Pocket", "Pocket003")
pocket4.Profile = sketch6
pocket4.Type = "UpToFirst"

# Sketch on YZ plane
sketch7 = body.newObject("Sketcher::SketchObject", "Sketch006")
sketch7.AttachmentSupport = (doc.getObject("YZ_Plane"), [""])
sketch7.MapMode = "FlatFace"
sketch7.AttachmentOffset = App.Placement(App.Vector(0, 0, 0.5 * 25.4), App.Rotation())
sketch7.addGeometry(Part.Circle(App.Vector(-9.5, 15.9, 0), App.Vector(0, 0, 1), 3.2), False)
sketch7.addConstraint([
    Sketcher.Constraint("Diameter", 0, Q("0.25 in")),
    Sketcher.Constraint("DistanceX", 0, 3, -1, 1, Q("0.375 in")),
    Sketcher.Constraint("DistanceY", -1, 1, 0, 3, Q("0.625 in")),
])
sketch7.setExpression("Constraints[0]", "Params.sketch7_diameter")
pocket5 = body.newObject("PartDesign::Pocket", "Pocket004")
pocket5.Profile = sketch7
pocket5.Type = "UpToFirst"

# Sketch on YZ plane
sketch8 = body.newObject("Sketcher::SketchObject", "Sketch007")
sketch8.AttachmentSupport = (doc.getObject("YZ_Plane"), [""])
sketch8.MapMode = "FlatFace"
sketch8.AttachmentOffset = App.Placement(App.Vector(0, 0, 0.5 * 25.4), App.Rotation())
sketch8.addGeometry(Part.Circle(App.Vector(-9.5, -3.2, 0), App.Vector(0, 0, 1), 3.2), False)
sketch8.addConstraint([
    Sketcher.Constraint("Diameter", 0, Q("0.25 in")),
    Sketcher.Constraint("DistanceX", 0, 3, -1, 1, Q("0.375 in")),
    Sketcher.Constraint("DistanceY", 0, 3, -1, 1, Q("0.125 in")),
])
sketch8.setExpression("Constraints[0]", "Params.sketch8_diameter")
pocket6 = body.newObject("PartDesign::Pocket", "Pocket005")
pocket6.Profile = sketch8
pocket6.Type = "UpToFirst"

# Sketch on YZ plane
sketch9 = body.newObject("Sketcher::SketchObject", "Sketch008")
sketch9.AttachmentSupport = (doc.getObject("YZ_Plane"), [""])
sketch9.MapMode = "FlatFace"
sketch9.AttachmentOffset = App.Placement(App.Vector(0, 0, 0.5 * 25.4), App.Rotation())
sketch9.addGeometry(Part.Circle(App.Vector(-9.5, -22.2, 0), App.Vector(0, 0, 1), 3.2), False)
sketch9.addConstraint([
    Sketcher.Constraint("Diameter", 0, Q("0.25 in")),
    Sketcher.Constraint("DistanceX", 0, 3, -1, 1, Q("0.375 in")),
    Sketcher.Constraint("DistanceY", 0, 3, -1, 1, Q("0.875 in")),
])
sketch9.setExpression("Constraints[0]", "Params.sketch9_diameter")
pocket7 = body.newObject("PartDesign::Pocket", "Pocket006")
pocket7.Profile = sketch9
pocket7.Type = "UpToFirst"

doc.recompute()
